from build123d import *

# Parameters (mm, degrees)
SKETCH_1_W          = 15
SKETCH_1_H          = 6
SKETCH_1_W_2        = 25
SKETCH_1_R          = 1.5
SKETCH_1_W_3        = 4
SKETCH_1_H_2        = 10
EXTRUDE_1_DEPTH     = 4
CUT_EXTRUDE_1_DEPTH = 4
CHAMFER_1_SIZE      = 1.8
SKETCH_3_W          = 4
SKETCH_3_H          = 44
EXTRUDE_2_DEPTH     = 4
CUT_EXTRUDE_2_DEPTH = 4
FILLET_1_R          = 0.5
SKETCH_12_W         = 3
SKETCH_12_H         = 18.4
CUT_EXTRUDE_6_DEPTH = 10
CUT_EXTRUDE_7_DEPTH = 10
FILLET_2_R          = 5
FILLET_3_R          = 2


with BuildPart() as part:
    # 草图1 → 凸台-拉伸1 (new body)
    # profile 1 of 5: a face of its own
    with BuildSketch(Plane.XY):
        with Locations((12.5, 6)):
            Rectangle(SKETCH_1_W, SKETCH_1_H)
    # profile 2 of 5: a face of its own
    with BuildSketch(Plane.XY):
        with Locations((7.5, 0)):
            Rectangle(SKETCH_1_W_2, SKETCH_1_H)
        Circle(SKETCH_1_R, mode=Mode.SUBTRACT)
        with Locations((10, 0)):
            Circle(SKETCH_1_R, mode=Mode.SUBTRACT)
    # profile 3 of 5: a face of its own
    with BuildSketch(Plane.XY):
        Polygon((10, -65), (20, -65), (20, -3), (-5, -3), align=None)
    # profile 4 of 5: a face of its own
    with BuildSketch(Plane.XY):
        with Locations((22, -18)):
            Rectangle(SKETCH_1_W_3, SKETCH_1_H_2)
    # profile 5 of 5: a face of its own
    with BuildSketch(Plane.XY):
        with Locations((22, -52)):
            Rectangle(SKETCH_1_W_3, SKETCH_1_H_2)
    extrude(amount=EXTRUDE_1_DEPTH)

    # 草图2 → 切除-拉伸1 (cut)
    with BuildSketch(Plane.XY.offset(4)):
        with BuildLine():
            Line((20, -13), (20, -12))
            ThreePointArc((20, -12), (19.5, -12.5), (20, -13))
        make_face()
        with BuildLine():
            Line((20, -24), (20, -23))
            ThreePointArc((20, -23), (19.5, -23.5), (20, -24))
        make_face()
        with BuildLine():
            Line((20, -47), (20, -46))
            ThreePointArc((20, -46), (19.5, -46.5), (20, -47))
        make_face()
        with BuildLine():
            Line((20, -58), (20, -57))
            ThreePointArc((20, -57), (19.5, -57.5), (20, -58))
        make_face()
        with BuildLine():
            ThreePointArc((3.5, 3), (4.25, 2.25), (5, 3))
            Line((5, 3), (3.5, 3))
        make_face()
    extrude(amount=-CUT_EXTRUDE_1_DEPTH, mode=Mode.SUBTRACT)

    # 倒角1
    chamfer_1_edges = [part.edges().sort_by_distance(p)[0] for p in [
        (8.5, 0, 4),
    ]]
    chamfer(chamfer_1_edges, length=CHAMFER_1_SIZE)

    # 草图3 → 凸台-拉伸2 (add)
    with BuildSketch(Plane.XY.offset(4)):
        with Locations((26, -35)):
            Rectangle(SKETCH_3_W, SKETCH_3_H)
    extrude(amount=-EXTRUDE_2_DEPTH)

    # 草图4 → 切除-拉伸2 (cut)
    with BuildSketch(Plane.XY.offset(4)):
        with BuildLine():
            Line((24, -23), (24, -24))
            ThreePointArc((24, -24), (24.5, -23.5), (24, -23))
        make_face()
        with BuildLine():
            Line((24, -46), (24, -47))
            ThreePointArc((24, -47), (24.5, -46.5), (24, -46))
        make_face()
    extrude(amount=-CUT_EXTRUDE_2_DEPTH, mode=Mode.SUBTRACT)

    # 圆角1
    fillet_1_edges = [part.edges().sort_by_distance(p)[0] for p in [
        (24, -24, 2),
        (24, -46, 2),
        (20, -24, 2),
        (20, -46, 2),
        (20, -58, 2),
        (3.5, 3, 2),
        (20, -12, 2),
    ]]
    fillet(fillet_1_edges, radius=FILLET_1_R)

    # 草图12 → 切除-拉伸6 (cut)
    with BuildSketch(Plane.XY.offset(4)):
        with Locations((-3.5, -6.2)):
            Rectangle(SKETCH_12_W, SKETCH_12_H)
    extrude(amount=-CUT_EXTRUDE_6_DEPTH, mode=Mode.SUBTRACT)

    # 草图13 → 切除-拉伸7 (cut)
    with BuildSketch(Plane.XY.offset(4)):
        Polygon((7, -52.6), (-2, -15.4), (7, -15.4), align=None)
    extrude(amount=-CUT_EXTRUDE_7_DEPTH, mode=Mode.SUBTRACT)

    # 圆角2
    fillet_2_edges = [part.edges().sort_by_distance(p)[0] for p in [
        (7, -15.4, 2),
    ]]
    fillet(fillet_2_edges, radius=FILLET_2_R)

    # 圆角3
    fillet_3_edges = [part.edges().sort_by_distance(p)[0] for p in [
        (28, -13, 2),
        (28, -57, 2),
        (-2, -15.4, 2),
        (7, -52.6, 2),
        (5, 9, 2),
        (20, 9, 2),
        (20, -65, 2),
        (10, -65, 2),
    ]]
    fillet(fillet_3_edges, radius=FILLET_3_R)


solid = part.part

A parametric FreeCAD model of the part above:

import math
import FreeCAD as App
import Part
import Sketcher

V = App.Vector


def edges_at(feature, points):
    """Names of the edges that pass closest to the given points."""
    edges = feature.Shape.Edges
    near = lambda p: min(range(len(edges)), key=lambda i: edges[i].distToShape(Part.Vertex(*p))[0])
    return sorted({f"Edge{near(p) + 1}" for p in points})

doc = App.newDocument("Part")
body = doc.addObject("PartDesign::Body", "Body")

sketch1 = doc.addObject("Sketcher::SketchObject", "Sketch")
body.addObject(sketch1)
sketch1.AttachmentSupport = (doc.XY_Plane, [""])
sketch1.MapMode = "FlatFace"
sketch1.addGeometry([
    Part.LineSegment(V(5, 9, 0), V(5, 3, 0)),
    Part.LineSegment(V(5, 3, 0), V(-5, 3, 0)),
    Part.LineSegment(V(-5, 3, 0), V(-5, -3, 0)),
    Part.LineSegment(V(-5, -3, 0), V(10, -65, 0)),
    Part.LineSegment(V(10, -65, 0), V(20, -65, 0)),
    Part.LineSegment(V(20, -65, 0), V(20, -57, 0)),
    Part.LineSegment(V(20, -57, 0), V(24, -57, 0)),
    Part.LineSegment(V(24, -57, 0), V(24, -47, 0)),
    Part.LineSegment(V(24, -47, 0), V(20, -47, 0)),
    Part.LineSegment(V(20, -47, 0), V(20, -23, 0)),
    Part.LineSegment(V(20, -23, 0), V(24, -23, 0)),
    Part.LineSegment(V(24, -23, 0), V(24, -13, 0)),
    Part.LineSegment(V(24, -13, 0), V(20, -13, 0)),
    Part.LineSegment(V(20, -13, 0), V(20, 9, 0)),
    Part.LineSegment(V(20, 9, 0), V(5, 9, 0)),
    Part.Circle(V(10, 0, 0), V(0, 0, 1), 1.5),
    Part.Circle(V(0, 0, 0), V(0, 0, 1), 1.5),
], False)
sketch1.addConstraint([
    Sketcher.Constraint("Coincident", 0, 2, 1, 1),
    Sketcher.Constraint("Coincident", 1, 2, 2, 1),
    Sketcher.Constraint("Coincident", 2, 2, 3, 1),
    Sketcher.Constraint("Coincident", 3, 2, 4, 1),
    Sketcher.Constraint("Coincident", 4, 2, 5, 1),
    Sketcher.Constraint("Coincident", 5, 2, 6, 1),
    Sketcher.Constraint("Coincident", 6, 2, 7, 1),
    Sketcher.Constraint("Coincident", 7, 2, 8, 1),
    Sketcher.Constraint("Coincident", 8, 2, 9, 1),
    Sketcher.Constraint("Coincident", 9, 2, 10, 1),
    Sketcher.Constraint("Coincident", 10, 2, 11, 1),
    Sketcher.Constraint("Coincident", 11, 2, 12, 1),
    Sketcher.Constraint("Coincident", 12, 2, 13, 1),
    Sketcher.Constraint("Coincident", 13, 2, 14, 1),
    Sketcher.Constraint("Coincident", 14, 2, 0, 1),
    Sketcher.Constraint("Vertical", 0),
    Sketcher.Constraint("Horizontal", 1),
    Sketcher.Constraint("Vertical", 2),
    Sketcher.Constraint("Horizontal", 4),
    Sketcher.Constraint("Vertical", 5),
    Sketcher.Constraint("Horizontal", 6),
    Sketcher.Constraint("Vertical", 7),
    Sketcher.Constraint("Horizontal", 8),
    Sketcher.Constraint("Vertical", 9),
    Sketcher.Constraint("Horizontal", 10),
    Sketcher.Constraint("Vertical", 11),
    Sketcher.Constraint("Horizontal", 12),
    Sketcher.Constraint("Vertical", 13),
    Sketcher.Constraint("Horizontal", 14),
    Sketcher.Constraint("Coincident", 16, 3, -1, 1),
    Sketcher.Constraint("Equal", 15, 16),
    Sketcher.Constraint("Symmetric", 0, 2, 2, 2, -1, 1),
    Sketcher.Constraint("PointOnObject", 15, 3, -1),
    Sketcher.Constraint("Vertical", 15, 3, 3, 2),
    Sketcher.Constraint("Vertical", 5, 2, 8, 2),
    Sketcher.Constraint("Vertical", 7, 2, 10, 2),
    Sketcher.Constraint("Vertical", 9, 2, 12, 2),
    Sketcher.Constraint("Equal", 1, 4),
    Sketcher.Constraint("Equal", 0, 2),
    Sketcher.Constraint("Equal", 4, 7),
    Sketcher.Constraint("Equal", 7, 11),
    Sketcher.Constraint("Diameter", 15, 3.0),
    Sketcher.Constraint("DistanceX", 1, 2, 1, 1, 10.0),
    Sketcher.Constraint("DistanceX", 6, 1, 6, 2, 4.0),
    Sketcher.Constraint("DistanceX", 14, 2, 14, 1, 15.0),
    Sketcher.Constraint("DistanceY", 0, 2, 0, 1, 6.0),
    Sketcher.Constraint("DistanceY", 5, 1, 5, 2, 8.0),
    Sketcher.Constraint("DistanceY", 9, 1, 9, 2, 24.0),
    Sketcher.Constraint("DistanceY", 13, 1, 13, 2, 22.0),
])
pad1 = doc.addObject("PartDesign::Pad", "Pad")
body.addObject(pad1)
pad1.Profile = sketch1
pad1.Length = 4

sketch2 = doc.addObject("Sketcher::SketchObject", "Sketch001")
body.addObject(sketch2)
sketch2.AttachmentSupport = (doc.XY_Plane, [""])
sketch2.MapMode = "FlatFace"
sketch2.AttachmentOffset = App.Placement(V(0, 0, 4), App.Rotation())
sketch2.addGeometry([
    Part.LineSegment(V(20, -13, 0), V(20, -12, 0)),
    Part.ArcOfCircle(Part.Circle(V(20, -12.5, 0), V(0, 0, 1), 0.5), math.radians(90), math.radians(270)),
    Part.LineSegment(V(20, -24, 0), V(20, -23, 0)),
    Part.ArcOfCircle(Part.Circle(V(20, -23.5, 0), V(0, 0, 1), 0.5), math.radians(90), math.radians(270)),
    Part.LineSegment(V(20, -47, 0), V(20, -46, 0)),
    Part.ArcOfCircle(Part.Circle(V(20, -46.5, 0), V(0, 0, 1), 0.5), math.radians(90), math.radians(270)),
    Part.LineSegment(V(20, -58, 0), V(20, -57, 0)),
    Part.ArcOfCircle(Part.Circle(V(20, -57.5, 0), V(0, 0, 1), 0.5), math.radians(90), math.radians(270)),
    Part.ArcOfCircle(Part.Circle(V(4.25, 3, 0), V(0, 0, 1), 0.75), math.radians(180), math.radians(360)),
    Part.LineSegment(V(5, 3, 0), V(3.5, 3, 0)),
], False)
sketch2.addConstraint([
    Sketcher.Constraint("Coincident", 0, 1, 1, 2),
    Sketcher.Constraint("Coincident", 1, 1, 0, 2),
    Sketcher.Constraint("Coincident", 2, 1, 3, 2),
    Sketcher.Constraint("Coincident", 3, 1, 2, 2),
    Sketcher.Constraint("Coincident", 4, 1, 5, 2),
    Sketcher.Constraint("Coincident", 5, 1, 4, 2),
    Sketcher.Constraint("Coincident", 6, 1, 7, 2),
    Sketcher.Constraint("Coincident", 7, 1, 6, 2),
    Sketcher.Constraint("Coincident", 8, 1, 9, 2),
    Sketcher.Constraint("Coincident", 9, 1, 8, 2),
    Sketcher.Constraint("Vertical", 0),
    Sketcher.Constraint("Vertical", 2),
    Sketcher.Constraint("Vertical", 4),
    Sketcher.Constraint("Vertical", 6),
    Sketcher.Constraint("Horizontal", 9),
    Sketcher.Constraint("Equal", 1, 3),
    Sketcher.Constraint("Equal", 3, 5),
    Sketcher.Constraint("Equal", 5, 7),
    Sketcher.Constraint("Vertical", 1, 3, 3, 3),
    Sketcher.Constraint("Vertical", 3, 3, 5, 3),
    Sketcher.Constraint("Vertical", 5, 3, 7, 3),
    Sketcher.Constraint("Vertical", 7, 3, 0, 1),
    Sketcher.Constraint("Vertical", 1, 1, 2, 1),
    Sketcher.Constraint("Vertical", 3, 1, 4, 1),
    Sketcher.Constraint("Vertical", 5, 1, 6, 1),
    Sketcher.Constraint("Radius", 1, 0.5),
    Sketcher.Constraint("Radius", 8, 0.75),
    Sketcher.Constraint("DistanceX", -1, 1, 1, 3, 20.0),
    Sketcher.Constraint("DistanceY", -1, 1, 8, 3, 3.0),
    Sketcher.Constraint("DistanceY", 0, 1, -1, 1, 13.0),
    Sketcher.Constraint("DistanceY", 2, 1, -1, 1, 24.0),
    Sketcher.Constraint("DistanceY", 4, 1, -1, 1, 47.0),
    Sketcher.Constraint("DistanceY", 6, 1, -1, 1, 58.0),
    Sketcher.Constraint("DistanceY", -1, 1, 8, 1, 3.0),
    Sketcher.Constraint("DistanceX", -1, 1, 9, 1, 5.0),
])
pocket1 = doc.addObject("PartDesign::Pocket", "Pocket")
body.addObject(pocket1)
pocket1.Profile = sketch2
pocket1.Length = 4
doc.recompute()

chamfer = doc.addObject("PartDesign::Chamfer", "Chamfer")
body.addObject(chamfer)
chamfer.Base = (pocket1, edges_at(pocket1, [(8.5, 0, 4)]))
chamfer.Size = 1.8

sketch3 = doc.addObject("Sketcher::SketchObject", "Sketch002")
body.addObject(sketch3)
sketch3.AttachmentSupport = (doc.XY_Plane, [""])
sketch3.MapMode = "FlatFace"
sketch3.AttachmentOffset = App.Placement(V(0, 0, 4), App.Rotation())
sketch3.addGeometry([
    Part.LineSegment(V(24, -13, 0), V(24, -57, 0)),
    Part.LineSegment(V(24, -57, 0), V(28, -57, 0)),
    Part.LineSegment(V(28, -57, 0), V(28, -13, 0)),
    Part.LineSegment(V(28, -13, 0), V(24, -13, 0)),
], False)
sketch3.addConstraint([
    Sketcher.Constraint("Coincident", 0, 2, 1, 1),
    Sketcher.Constraint("Coincident", 1, 2, 2, 1),
    Sketcher.Constraint("Coincident", 2, 2, 3, 1),
    Sketcher.Constraint("Coincident", 3, 2, 0, 1),
    Sketcher.Constraint("Vertical", 0),
    Sketcher.Constraint("Horizontal", 1),
    Sketcher.Constraint("Vertical", 2),
    Sketcher.Constraint("Horizontal", 3),
    Sketcher.Constraint("DistanceX", 1, 1, 1, 2, 4.0),
    Sketcher.Constraint("DistanceY", 0, 2, 0, 1, 44.0),
    Sketcher.Constraint("DistanceX", -1, 1, 0, 2, 24.0),
    Sketcher.Constraint("DistanceY", 0, 2, -1, 1, 57.0),
])
pad2 = doc.addObject("PartDesign::Pad", "Pad001")
body.addObject(pad2)
pad2.Profile = sketch3
pad2.Length = 4
pad2.Reversed = True

sketch4 = doc.addObject("Sketcher::SketchObject", "Sketch003")
body.addObject(sketch4)
sketch4.AttachmentSupport = (doc.XY_Plane, [""])
sketch4.MapMode = "FlatFace"
sketch4.AttachmentOffset = App.Placement(V(0, 0, 4), App.Rotation())
sketch4.addGeometry([
    Part.LineSegment(V(24, -23, 0), V(24, -24, 0)),
    Part.ArcOfCircle(Part.Circle(V(24, -23.5, 0), V(0, 0, 1), 0.5), math.radians(-90), math.radians(90)),
    Part.LineSegment(V(24, -46, 0), V(24, -47, 0)),
    Part.ArcOfCircle(Part.Circle(V(24, -46.5, 0), V(0, 0, 1), 0.5), math.radians(-90), math.radians(90)),
], False)
sketch4.addConstraint([
    Sketcher.Constraint("Coincident", 0, 1, 1, 2),
    Sketcher.Constraint("Coincident", 1, 1, 0, 2),
    Sketcher.Constraint("Coincident", 2, 1, 3, 2),
    Sketcher.Constraint("Coincident", 3, 1, 2, 2),
    Sketcher.Constraint("Vertical", 0),
    Sketcher.Constraint("Vertical", 2),
    Sketcher.Constraint("Equal", 1, 3),
    Sketcher.Constraint("Vertical", 1, 3, 3, 3),
    Sketcher.Constraint("Vertical", 3, 3, 0, 1),
    Sketcher.Constraint("Vertical", 1, 1, 2, 1),
    Sketcher.Constraint("Radius", 1, 0.5),
    Sketcher.Constraint("DistanceX", -1, 1, 1, 3, 24.0),
    Sketcher.Constraint("DistanceY", 0, 1, -1, 1, 23.0),
    Sketcher.Constraint("DistanceY", 2, 1, -1, 1, 46.0),
])
pocket2 = doc.addObject("PartDesign::Pocket", "Pocket001")
body.addObject(pocket2)
pocket2.Profile = sketch4
pocket2.Length = 4
doc.recompute()

fillet = doc.addObject("PartDesign::Fillet", "Fillet")
body.addObject(fillet)
fillet.Base = (pocket2, edges_at(pocket2, [
    (24, -24, 2),
    (24, -46, 2),
    (20, -24, 2),
    (20, -46, 2),
    (20, -58, 2),
    (3.5, 3, 2),
    (20, -12, 2),
]))
fillet.Radius = 0.5

sketch5 = doc.addObject("Sketcher::SketchObject", "Sketch004")
body.addObject(sketch5)
sketch5.AttachmentSupport = (doc.XY_Plane, [""])
sketch5.MapMode = "FlatFace"
sketch5.AttachmentOffset = App.Placement(V(0, 0, 4), App.Rotation())
sketch5.addGeometry([
    Part.LineSegment(V(-5, 3, 0), V(-5, -15.4, 0)),
    Part.LineSegment(V(-5, -15.4, 0), V(-2, -15.4, 0)),
    Part.LineSegment(V(-2, -15.4, 0), V(-2, 3, 0)),
    Part.LineSegment(V(-2, 3, 0), V(-5, 3, 0)),
], False)
sketch5.addConstraint([
    Sketcher.Constraint("Coincident", 0, 2, 1, 1),
    Sketcher.Constraint("Coincident", 1, 2, 2, 1),
    Sketcher.Constraint("Coincident", 2, 2, 3, 1),
    Sketcher.Constraint("Coincident", 3, 2, 0, 1),
    Sketcher.Constraint("Vertical", 0),
    Sketcher.Constraint("Horizontal", 1),
    Sketcher.Constraint("Vertical", 2),
    Sketcher.Constraint("Horizontal", 3),
    Sketcher.Constraint("DistanceX", 1, 1, 1, 2, 3.0),
    Sketcher.Constraint("DistanceY", 0, 2, 0, 1, 18.4),
    Sketcher.Constraint("DistanceX", 0, 2, -1, 1, 5.0),
    Sketcher.Constraint("DistanceY", -1, 1, 2, 2, 3.0),
])
pocket3 = doc.addObject("PartDesign::Pocket", "Pocket002")
body.addObject(pocket3)
pocket3.Profile = sketch5
pocket3.Length = 10

sketch6 = doc.addObject("Sketcher::SketchObject", "Sketch005")
body.addObject(sketch6)
sketch6.AttachmentSupport = (doc.XY_Plane, [""])
sketch6.MapMode = "FlatFace"
sketch6.AttachmentOffset = App.Placement(V(0, 0, 4), App.Rotation())
sketch6.addGeometry([
    Part.LineSegment(V(-2, -15.4, 0), V(7, -52.6, 0)),
    Part.LineSegment(V(7, -52.6, 0), V(7, -15.4, 0)),
    Part.LineSegment(V(7, -15.4, 0), V(-2, -15.4, 0)),
], False)
sketch6.addConstraint([
    Sketcher.Constraint("Coincident", 0, 2, 1, 1),
    Sketcher.Constraint("Coincident", 1, 2, 2, 1),
    Sketcher.Constraint("Coincident", 2, 2, 0, 1),
    Sketcher.Constraint("Vertical", 1),
    Sketcher.Constraint("Horizontal", 2),
    Sketcher.Constraint("DistanceX", 2, 2, 2, 1, 9.0),
    Sketcher.Constraint("DistanceY", 1, 1, 1, 2, 37.2),
    Sketcher.Constraint("DistanceX", -1, 1, 0, 2, 7.0),
    Sketcher.Constraint("DistanceY", 0, 2, -1, 1, 52.6),
])
pocket4 = doc.addObject("PartDesign::Pocket", "Pocket003")
body.addObject(pocket4)
pocket4.Profile = sketch6
pocket4.Length = 10
doc.recompute()

fillet2 = doc.addObject("PartDesign::Fillet", "Fillet001")
body.addObject(fillet2)
fillet2.Base = (pocket4, edges_at(pocket4, [(7, -15.4, 2)]))
fillet2.Radius = 5
doc.recompute()

fillet3 = doc.addObject("PartDesign::Fillet", "Fillet002")
body.addObject(fillet3)
fillet3.Base = (fillet2, edges_at(fillet2, [
    (28, -13, 2),
    (28, -57, 2),
    (-2, -15.4, 2),
    (7, -52.6, 2),
    (5, 9, 2),
    (20, 9, 2),
    (20, -65, 2),
    (10, -65, 2),
]))
fillet3.Radius = 2

doc.recompute()
